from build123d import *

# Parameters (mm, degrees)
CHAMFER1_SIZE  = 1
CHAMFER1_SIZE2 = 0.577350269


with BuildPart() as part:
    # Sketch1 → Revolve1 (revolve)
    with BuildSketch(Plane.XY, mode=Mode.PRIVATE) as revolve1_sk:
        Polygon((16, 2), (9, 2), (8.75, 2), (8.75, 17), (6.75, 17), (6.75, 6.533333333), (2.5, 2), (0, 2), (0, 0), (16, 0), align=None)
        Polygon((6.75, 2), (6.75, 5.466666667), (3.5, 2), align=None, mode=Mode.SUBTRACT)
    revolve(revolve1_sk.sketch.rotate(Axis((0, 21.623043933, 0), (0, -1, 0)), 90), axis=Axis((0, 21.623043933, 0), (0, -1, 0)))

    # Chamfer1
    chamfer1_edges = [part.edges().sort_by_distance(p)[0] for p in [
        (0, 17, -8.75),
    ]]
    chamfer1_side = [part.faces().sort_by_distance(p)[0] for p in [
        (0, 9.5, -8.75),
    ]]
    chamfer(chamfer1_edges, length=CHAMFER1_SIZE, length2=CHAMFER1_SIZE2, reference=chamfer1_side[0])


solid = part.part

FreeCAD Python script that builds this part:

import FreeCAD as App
import Part
import Sketcher


def edges_at(feature, points):
    """Names of the edges that pass closest to the given points."""
    edges = feature.Shape.Edges
    near = lambda p: min(range(len(edges)), key=lambda i: edges[i].distToShape(Part.Vertex(*p))[0])
    return sorted({f"Edge{near(p) + 1}" for p in points})

doc = App.newDocument("Part")
body = doc.addObject("PartDesign::Body", "Body")

sketch1 = body.newObject("Sketcher::SketchObject", "Sketch")
sketch1.AttachmentSupport = (doc.getObject("XY_Plane"), [""])
sketch1.MapMode = "FlatFace"
sketch1.addGeometry([
    Part.LineSegment(App.Vector(16, 2, 0), App.Vector(8.8, 2, 0)),
    Part.LineSegment(App.Vector(8.8, 2, 0), App.Vector(8.8, 17, 0)),
    Part.LineSegment(App.Vector(8.8, 17, 0), App.Vector(6.8, 17, 0)),
    Part.LineSegment(App.Vector(6.8, 17, 0), App.Vector(6.8, 6.5, 0)),
    Part.LineSegment(App.Vector(6.8, 6.5, 0), App.Vector(2.5, 2, 0)),
    Part.LineSegment(App.Vector(2.5, 2, 0), App.Vector(0, 2, 0)),
    Part.LineSegment(App.Vector(0, 2, 0), App.Vector(0, 0, 0)),
    Part.LineSegment(App.Vector(0, 0, 0), App.Vector(16, 0, 0)),
    Part.LineSegment(App.Vector(16, 0, 0), App.Vector(16, 2, 0)),
    Part.LineSegment(App.Vector(6.8, 5.5, 0), App.Vector(6.8, 2, 0)),
    Part.LineSegment(App.Vector(6.8, 2, 0), App.Vector(3.5, 2, 0)),
    Part.LineSegment(App.Vector(3.5, 2, 0), App.Vector(6.8, 5.5, 0)),
], False)
sketch1.addConstraint([
    Sketcher.Constraint("Coincident", 0, 2, 1, 1),
    Sketcher.Constraint("Coincident", 1, 2, 2, 1),
    Sketcher.Constraint("Coincident", 2, 2, 3, 1),
    Sketcher.Constraint("Coincident", 3, 2, 4, 1),
    Sketcher.Constraint("Coincident", 4, 2, 5, 1),
    Sketcher.Constraint("Coincident", 5, 2, 6, 1),
    Sketcher.Constraint("Coincident", 6, 2, 7, 1),
    Sketcher.Constraint("Coincident", 7, 2, 8, 1),
    Sketcher.Constraint("Coincident", 8, 2, 0, 1),
    Sketcher.Constraint("Coincident", 9, 2, 10, 1),
    Sketcher.Constraint("Coincident", 10, 2, 11, 1),
    Sketcher.Constraint("Coincident", 11, 2, 9, 1),
    Sketcher.Constraint("Horizontal", 0),
    Sketcher.Constraint("Vertical", 1),
    Sketcher.Constraint("Horizontal", 2),
    Sketcher.Constraint("Vertical", 3),
    Sketcher.Constraint("Horizontal", 5),
    Sketcher.Constraint("Vertical", 6),
    Sketcher.Constraint("Horizontal", 7),
    Sketcher.Constraint("Vertical", 8),
    Sketcher.Constraint("Vertical", 9),
    Sketcher.Constraint("Horizontal", 10),
    Sketcher.Constraint("Coincident", 6, 2, -1, 1),
    Sketcher.Constraint("Parallel", 4, 11),
    Sketcher.Constraint("Horizontal", 0, 2, 4, 2),
    Sketcher.Constraint("Horizontal", 8, 2, 9, 2),
    Sketcher.Constraint("Vertical", 3, 2, 9, 2),
    Sketcher.Constraint("Equal", 2, 6),
    Sketcher.Constraint("DistanceX", 2, 2, 2, 1, 2.0),
    Sketcher.Constraint("DistanceX", 7, 1, 7, 2, 16.0),
    Sketcher.Constraint("DistanceY", 1, 1, 1, 2, 15.0),
    Sketcher.Constraint("DistanceX", 5, 2, 5, 1, 2.5),
    Sketcher.Constraint("DistanceX", 4, 2, 10, 2, 1.0),
    Sketcher.Constraint("DistanceX", 0, 2, 0, 1, 7.25),
    Sketcher.Constraint("Distance", 11, 4.751871),
])
revolution = body.newObject("PartDesign::Revolution", "Revolution")
revolution.Profile = sketch1
revolution.ReferenceAxis = (sketch1, ["V_Axis"])
revolution.Angle = 360
doc.recompute()

chamfer = body.newObject("PartDesign::Chamfer", "Chamfer")
chamfer.Base = (revolution, edges_at(revolution, [(0, 17, -8.75)]))
chamfer.ChamferType = "Two distances"
chamfer.Size = 1
chamfer.Size2 = 0.57735

doc.recompute()
